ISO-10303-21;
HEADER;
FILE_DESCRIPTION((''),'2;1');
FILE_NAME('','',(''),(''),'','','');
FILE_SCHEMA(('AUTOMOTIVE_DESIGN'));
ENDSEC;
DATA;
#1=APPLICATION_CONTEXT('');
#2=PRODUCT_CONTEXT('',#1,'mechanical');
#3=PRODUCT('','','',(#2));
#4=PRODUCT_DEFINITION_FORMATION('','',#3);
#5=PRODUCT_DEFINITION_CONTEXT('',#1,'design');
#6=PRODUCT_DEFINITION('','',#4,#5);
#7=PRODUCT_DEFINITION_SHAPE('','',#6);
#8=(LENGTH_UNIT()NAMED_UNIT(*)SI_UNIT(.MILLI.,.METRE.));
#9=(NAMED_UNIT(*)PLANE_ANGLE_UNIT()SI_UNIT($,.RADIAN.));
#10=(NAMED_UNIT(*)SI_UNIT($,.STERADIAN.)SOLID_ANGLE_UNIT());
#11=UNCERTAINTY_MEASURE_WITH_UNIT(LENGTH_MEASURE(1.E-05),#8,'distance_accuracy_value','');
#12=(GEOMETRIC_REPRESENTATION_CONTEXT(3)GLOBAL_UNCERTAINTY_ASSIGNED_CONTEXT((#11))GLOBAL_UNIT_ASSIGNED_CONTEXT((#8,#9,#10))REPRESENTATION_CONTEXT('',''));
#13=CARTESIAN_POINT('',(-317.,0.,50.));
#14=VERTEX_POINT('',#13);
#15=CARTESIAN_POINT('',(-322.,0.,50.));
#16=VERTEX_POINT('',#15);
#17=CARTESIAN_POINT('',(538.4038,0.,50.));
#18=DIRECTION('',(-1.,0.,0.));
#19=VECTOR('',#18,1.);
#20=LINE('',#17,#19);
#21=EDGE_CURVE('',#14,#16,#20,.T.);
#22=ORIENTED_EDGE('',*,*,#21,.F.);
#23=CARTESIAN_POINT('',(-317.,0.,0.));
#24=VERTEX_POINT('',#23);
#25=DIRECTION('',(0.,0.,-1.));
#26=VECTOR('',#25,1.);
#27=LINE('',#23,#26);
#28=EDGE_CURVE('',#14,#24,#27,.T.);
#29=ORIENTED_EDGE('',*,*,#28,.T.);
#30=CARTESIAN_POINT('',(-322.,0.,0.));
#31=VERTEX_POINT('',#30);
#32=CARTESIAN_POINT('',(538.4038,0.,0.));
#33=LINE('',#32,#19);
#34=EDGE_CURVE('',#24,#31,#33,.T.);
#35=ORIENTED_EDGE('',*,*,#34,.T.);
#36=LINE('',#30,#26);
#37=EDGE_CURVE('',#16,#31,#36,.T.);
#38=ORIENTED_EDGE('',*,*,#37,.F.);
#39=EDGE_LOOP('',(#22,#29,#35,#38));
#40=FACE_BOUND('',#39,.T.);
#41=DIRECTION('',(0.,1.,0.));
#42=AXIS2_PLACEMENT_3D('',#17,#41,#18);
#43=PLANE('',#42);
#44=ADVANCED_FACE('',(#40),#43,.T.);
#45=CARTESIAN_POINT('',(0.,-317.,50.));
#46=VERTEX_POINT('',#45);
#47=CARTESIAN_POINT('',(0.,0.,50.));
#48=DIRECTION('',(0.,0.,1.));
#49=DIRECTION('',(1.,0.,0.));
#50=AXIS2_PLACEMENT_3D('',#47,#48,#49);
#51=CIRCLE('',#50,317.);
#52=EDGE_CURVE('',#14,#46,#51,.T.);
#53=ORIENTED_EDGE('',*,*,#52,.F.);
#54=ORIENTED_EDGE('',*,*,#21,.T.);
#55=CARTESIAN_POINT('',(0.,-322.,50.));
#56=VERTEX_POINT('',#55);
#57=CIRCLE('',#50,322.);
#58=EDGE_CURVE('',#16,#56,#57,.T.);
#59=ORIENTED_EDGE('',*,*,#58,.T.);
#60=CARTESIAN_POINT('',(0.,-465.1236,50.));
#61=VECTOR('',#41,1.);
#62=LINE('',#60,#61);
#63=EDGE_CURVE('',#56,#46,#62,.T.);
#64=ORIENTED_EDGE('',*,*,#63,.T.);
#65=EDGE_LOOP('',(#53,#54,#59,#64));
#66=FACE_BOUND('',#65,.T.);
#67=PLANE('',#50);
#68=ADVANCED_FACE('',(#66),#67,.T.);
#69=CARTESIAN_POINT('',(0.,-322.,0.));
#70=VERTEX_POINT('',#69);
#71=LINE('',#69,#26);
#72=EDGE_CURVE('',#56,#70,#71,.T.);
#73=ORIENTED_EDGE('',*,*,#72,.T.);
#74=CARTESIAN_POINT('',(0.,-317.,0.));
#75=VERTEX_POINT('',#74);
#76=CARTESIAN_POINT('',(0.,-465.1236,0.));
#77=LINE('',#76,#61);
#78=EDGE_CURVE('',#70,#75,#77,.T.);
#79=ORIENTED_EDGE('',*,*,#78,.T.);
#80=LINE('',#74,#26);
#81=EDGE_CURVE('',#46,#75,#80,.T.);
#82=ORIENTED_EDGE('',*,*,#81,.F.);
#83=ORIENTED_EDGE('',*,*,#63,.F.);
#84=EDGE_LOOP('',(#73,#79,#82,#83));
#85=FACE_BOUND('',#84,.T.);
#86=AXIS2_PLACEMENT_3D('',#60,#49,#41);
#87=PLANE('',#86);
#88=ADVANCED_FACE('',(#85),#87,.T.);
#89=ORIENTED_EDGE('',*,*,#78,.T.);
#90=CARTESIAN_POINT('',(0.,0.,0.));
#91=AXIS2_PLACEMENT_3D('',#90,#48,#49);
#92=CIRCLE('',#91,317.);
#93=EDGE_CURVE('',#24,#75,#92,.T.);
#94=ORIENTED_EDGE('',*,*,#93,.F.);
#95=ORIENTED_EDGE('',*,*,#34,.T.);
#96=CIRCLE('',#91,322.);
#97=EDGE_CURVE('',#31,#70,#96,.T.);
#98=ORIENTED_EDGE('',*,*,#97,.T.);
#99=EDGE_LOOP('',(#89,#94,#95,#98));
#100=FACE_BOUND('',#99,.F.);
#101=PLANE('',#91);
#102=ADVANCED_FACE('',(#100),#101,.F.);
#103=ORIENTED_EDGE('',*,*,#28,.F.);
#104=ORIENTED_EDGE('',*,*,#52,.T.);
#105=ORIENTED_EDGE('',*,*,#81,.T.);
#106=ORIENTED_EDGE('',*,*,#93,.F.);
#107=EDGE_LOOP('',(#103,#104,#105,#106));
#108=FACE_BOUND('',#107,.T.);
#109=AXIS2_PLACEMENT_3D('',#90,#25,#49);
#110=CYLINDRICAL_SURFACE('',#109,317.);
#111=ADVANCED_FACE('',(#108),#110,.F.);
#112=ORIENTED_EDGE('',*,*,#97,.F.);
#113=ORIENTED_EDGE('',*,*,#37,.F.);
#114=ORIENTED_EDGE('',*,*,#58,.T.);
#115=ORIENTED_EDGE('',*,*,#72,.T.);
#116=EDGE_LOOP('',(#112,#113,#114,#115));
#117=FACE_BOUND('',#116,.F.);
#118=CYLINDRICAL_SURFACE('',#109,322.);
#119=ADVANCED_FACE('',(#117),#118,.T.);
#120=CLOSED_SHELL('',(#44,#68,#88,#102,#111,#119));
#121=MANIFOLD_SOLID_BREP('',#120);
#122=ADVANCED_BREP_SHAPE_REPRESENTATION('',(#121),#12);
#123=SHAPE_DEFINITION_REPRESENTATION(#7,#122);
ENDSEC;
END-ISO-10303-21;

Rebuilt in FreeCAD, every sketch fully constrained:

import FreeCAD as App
import Part
import Sketcher

V = App.Vector


def add_polygon(sketch, points):
    """Adds a closed chain of lines whose ends are joined by coincident constraints."""
    first, n = sketch.GeometryCount, len(points)
    for a, b in zip(points, points[1:] + points[:1]):
        sketch.addGeometry(Part.LineSegment(App.Vector(*a, 0), App.Vector(*b, 0)), False)
    for i in range(n):
        sketch.addConstraint(Sketcher.Constraint("Coincident", first + i, 2, first + (i + 1) % n, 1))

doc = App.newDocument("Part")
body = doc.addObject("PartDesign::Body", "Body")

# Sketch on XY plane
sketch1 = body.newObject("Sketcher::SketchObject", "Sketch")
sketch1.AttachmentSupport = (doc.getObject("XY_Plane"), [""])
sketch1.MapMode = "FlatFace"
sketch1.addGeometry([
    Part.Circle(V(0, 0, 0), V(0, 0, 1), 322),
    Part.Circle(V(0, 0, 0), V(0, 0, 1), 317),
], False)
sketch1.addConstraint([
    Sketcher.Constraint("Coincident", 0, 3, -1, 1),
    Sketcher.Constraint("Coincident", 1, 3, -1, 1),
    Sketcher.Constraint("Diameter", 0, 644.0),
    Sketcher.Constraint("Diameter", 1, 634.0),
])
pad1 = body.newObject("PartDesign::Pad", "Pad")
pad1.Profile = sketch1
pad1.Length = 50

# Sketch on XY plane
sketch2 = body.newObject("Sketcher::SketchObject", "Sketch001")
sketch2.AttachmentSupport = (doc.getObject("XY_Plane"), [""])
sketch2.MapMode = "FlatFace"
sketch2.AttachmentOffset = App.Placement(V(0, 0, 50), App.Rotation())
add_polygon(sketch2, [(538, 350), (-489, 350), (-489, 0), (538, 0)])  # lines 0-3
sketch2.addConstraint([
    Sketcher.Constraint("Horizontal", 0),
    Sketcher.Constraint("Vertical", 1),
    Sketcher.Constraint("Horizontal", 2),
    Sketcher.Constraint("Vertical", 3),
    Sketcher.Constraint("PointOnObject", 1, 2, -1),
    Sketcher.Constraint("DistanceY", 1, 2, 1, 1, 349.694),
    Sketcher.Constraint("DistanceX", 0, 2, 0, 1, 1026.9352),
    Sketcher.Constraint("DistanceX", 0, 2, -1, 1, 488.5314),
])
pocket1 = body.newObject("PartDesign::Pocket", "Pocket")
pocket1.Profile = sketch2
pocket1.Length = 50

# Sketch on XY plane
sketch3 = body.newObject("Sketcher::SketchObject", "Sketch002")
sketch3.AttachmentSupport = (doc.getObject("XY_Plane"), [""])
sketch3.MapMode = "FlatFace"
sketch3.AttachmentOffset = App.Placement(V(0, 0, 50), App.Rotation())
add_polygon(sketch3, [(398, 139), (0, 139), (0, -465), (398, -465)])  # lines 0-3
sketch3.addConstraint([
    Sketcher.Constraint("Horizontal", 0),
    Sketcher.Constraint("Vertical", 1),
    Sketcher.Constraint("Horizontal", 2),
    Sketcher.Constraint("Vertical", 3),
    Sketcher.Constraint("PointOnObject", 0, 2, -2),
    Sketcher.Constraint("DistanceX", 0, 2, 0, 1, 398.1663),
    Sketcher.Constraint("DistanceY", 1, 2, 1, 1, 604.3596),
    Sketcher.Constraint("DistanceY", -1, 1, 0, 2, 139.236),
])
pocket2 = body.newObject("PartDesign::Pocket", "Pocket001")
pocket2.Profile = sketch3
pocket2.Length = 50

doc.recompute()
